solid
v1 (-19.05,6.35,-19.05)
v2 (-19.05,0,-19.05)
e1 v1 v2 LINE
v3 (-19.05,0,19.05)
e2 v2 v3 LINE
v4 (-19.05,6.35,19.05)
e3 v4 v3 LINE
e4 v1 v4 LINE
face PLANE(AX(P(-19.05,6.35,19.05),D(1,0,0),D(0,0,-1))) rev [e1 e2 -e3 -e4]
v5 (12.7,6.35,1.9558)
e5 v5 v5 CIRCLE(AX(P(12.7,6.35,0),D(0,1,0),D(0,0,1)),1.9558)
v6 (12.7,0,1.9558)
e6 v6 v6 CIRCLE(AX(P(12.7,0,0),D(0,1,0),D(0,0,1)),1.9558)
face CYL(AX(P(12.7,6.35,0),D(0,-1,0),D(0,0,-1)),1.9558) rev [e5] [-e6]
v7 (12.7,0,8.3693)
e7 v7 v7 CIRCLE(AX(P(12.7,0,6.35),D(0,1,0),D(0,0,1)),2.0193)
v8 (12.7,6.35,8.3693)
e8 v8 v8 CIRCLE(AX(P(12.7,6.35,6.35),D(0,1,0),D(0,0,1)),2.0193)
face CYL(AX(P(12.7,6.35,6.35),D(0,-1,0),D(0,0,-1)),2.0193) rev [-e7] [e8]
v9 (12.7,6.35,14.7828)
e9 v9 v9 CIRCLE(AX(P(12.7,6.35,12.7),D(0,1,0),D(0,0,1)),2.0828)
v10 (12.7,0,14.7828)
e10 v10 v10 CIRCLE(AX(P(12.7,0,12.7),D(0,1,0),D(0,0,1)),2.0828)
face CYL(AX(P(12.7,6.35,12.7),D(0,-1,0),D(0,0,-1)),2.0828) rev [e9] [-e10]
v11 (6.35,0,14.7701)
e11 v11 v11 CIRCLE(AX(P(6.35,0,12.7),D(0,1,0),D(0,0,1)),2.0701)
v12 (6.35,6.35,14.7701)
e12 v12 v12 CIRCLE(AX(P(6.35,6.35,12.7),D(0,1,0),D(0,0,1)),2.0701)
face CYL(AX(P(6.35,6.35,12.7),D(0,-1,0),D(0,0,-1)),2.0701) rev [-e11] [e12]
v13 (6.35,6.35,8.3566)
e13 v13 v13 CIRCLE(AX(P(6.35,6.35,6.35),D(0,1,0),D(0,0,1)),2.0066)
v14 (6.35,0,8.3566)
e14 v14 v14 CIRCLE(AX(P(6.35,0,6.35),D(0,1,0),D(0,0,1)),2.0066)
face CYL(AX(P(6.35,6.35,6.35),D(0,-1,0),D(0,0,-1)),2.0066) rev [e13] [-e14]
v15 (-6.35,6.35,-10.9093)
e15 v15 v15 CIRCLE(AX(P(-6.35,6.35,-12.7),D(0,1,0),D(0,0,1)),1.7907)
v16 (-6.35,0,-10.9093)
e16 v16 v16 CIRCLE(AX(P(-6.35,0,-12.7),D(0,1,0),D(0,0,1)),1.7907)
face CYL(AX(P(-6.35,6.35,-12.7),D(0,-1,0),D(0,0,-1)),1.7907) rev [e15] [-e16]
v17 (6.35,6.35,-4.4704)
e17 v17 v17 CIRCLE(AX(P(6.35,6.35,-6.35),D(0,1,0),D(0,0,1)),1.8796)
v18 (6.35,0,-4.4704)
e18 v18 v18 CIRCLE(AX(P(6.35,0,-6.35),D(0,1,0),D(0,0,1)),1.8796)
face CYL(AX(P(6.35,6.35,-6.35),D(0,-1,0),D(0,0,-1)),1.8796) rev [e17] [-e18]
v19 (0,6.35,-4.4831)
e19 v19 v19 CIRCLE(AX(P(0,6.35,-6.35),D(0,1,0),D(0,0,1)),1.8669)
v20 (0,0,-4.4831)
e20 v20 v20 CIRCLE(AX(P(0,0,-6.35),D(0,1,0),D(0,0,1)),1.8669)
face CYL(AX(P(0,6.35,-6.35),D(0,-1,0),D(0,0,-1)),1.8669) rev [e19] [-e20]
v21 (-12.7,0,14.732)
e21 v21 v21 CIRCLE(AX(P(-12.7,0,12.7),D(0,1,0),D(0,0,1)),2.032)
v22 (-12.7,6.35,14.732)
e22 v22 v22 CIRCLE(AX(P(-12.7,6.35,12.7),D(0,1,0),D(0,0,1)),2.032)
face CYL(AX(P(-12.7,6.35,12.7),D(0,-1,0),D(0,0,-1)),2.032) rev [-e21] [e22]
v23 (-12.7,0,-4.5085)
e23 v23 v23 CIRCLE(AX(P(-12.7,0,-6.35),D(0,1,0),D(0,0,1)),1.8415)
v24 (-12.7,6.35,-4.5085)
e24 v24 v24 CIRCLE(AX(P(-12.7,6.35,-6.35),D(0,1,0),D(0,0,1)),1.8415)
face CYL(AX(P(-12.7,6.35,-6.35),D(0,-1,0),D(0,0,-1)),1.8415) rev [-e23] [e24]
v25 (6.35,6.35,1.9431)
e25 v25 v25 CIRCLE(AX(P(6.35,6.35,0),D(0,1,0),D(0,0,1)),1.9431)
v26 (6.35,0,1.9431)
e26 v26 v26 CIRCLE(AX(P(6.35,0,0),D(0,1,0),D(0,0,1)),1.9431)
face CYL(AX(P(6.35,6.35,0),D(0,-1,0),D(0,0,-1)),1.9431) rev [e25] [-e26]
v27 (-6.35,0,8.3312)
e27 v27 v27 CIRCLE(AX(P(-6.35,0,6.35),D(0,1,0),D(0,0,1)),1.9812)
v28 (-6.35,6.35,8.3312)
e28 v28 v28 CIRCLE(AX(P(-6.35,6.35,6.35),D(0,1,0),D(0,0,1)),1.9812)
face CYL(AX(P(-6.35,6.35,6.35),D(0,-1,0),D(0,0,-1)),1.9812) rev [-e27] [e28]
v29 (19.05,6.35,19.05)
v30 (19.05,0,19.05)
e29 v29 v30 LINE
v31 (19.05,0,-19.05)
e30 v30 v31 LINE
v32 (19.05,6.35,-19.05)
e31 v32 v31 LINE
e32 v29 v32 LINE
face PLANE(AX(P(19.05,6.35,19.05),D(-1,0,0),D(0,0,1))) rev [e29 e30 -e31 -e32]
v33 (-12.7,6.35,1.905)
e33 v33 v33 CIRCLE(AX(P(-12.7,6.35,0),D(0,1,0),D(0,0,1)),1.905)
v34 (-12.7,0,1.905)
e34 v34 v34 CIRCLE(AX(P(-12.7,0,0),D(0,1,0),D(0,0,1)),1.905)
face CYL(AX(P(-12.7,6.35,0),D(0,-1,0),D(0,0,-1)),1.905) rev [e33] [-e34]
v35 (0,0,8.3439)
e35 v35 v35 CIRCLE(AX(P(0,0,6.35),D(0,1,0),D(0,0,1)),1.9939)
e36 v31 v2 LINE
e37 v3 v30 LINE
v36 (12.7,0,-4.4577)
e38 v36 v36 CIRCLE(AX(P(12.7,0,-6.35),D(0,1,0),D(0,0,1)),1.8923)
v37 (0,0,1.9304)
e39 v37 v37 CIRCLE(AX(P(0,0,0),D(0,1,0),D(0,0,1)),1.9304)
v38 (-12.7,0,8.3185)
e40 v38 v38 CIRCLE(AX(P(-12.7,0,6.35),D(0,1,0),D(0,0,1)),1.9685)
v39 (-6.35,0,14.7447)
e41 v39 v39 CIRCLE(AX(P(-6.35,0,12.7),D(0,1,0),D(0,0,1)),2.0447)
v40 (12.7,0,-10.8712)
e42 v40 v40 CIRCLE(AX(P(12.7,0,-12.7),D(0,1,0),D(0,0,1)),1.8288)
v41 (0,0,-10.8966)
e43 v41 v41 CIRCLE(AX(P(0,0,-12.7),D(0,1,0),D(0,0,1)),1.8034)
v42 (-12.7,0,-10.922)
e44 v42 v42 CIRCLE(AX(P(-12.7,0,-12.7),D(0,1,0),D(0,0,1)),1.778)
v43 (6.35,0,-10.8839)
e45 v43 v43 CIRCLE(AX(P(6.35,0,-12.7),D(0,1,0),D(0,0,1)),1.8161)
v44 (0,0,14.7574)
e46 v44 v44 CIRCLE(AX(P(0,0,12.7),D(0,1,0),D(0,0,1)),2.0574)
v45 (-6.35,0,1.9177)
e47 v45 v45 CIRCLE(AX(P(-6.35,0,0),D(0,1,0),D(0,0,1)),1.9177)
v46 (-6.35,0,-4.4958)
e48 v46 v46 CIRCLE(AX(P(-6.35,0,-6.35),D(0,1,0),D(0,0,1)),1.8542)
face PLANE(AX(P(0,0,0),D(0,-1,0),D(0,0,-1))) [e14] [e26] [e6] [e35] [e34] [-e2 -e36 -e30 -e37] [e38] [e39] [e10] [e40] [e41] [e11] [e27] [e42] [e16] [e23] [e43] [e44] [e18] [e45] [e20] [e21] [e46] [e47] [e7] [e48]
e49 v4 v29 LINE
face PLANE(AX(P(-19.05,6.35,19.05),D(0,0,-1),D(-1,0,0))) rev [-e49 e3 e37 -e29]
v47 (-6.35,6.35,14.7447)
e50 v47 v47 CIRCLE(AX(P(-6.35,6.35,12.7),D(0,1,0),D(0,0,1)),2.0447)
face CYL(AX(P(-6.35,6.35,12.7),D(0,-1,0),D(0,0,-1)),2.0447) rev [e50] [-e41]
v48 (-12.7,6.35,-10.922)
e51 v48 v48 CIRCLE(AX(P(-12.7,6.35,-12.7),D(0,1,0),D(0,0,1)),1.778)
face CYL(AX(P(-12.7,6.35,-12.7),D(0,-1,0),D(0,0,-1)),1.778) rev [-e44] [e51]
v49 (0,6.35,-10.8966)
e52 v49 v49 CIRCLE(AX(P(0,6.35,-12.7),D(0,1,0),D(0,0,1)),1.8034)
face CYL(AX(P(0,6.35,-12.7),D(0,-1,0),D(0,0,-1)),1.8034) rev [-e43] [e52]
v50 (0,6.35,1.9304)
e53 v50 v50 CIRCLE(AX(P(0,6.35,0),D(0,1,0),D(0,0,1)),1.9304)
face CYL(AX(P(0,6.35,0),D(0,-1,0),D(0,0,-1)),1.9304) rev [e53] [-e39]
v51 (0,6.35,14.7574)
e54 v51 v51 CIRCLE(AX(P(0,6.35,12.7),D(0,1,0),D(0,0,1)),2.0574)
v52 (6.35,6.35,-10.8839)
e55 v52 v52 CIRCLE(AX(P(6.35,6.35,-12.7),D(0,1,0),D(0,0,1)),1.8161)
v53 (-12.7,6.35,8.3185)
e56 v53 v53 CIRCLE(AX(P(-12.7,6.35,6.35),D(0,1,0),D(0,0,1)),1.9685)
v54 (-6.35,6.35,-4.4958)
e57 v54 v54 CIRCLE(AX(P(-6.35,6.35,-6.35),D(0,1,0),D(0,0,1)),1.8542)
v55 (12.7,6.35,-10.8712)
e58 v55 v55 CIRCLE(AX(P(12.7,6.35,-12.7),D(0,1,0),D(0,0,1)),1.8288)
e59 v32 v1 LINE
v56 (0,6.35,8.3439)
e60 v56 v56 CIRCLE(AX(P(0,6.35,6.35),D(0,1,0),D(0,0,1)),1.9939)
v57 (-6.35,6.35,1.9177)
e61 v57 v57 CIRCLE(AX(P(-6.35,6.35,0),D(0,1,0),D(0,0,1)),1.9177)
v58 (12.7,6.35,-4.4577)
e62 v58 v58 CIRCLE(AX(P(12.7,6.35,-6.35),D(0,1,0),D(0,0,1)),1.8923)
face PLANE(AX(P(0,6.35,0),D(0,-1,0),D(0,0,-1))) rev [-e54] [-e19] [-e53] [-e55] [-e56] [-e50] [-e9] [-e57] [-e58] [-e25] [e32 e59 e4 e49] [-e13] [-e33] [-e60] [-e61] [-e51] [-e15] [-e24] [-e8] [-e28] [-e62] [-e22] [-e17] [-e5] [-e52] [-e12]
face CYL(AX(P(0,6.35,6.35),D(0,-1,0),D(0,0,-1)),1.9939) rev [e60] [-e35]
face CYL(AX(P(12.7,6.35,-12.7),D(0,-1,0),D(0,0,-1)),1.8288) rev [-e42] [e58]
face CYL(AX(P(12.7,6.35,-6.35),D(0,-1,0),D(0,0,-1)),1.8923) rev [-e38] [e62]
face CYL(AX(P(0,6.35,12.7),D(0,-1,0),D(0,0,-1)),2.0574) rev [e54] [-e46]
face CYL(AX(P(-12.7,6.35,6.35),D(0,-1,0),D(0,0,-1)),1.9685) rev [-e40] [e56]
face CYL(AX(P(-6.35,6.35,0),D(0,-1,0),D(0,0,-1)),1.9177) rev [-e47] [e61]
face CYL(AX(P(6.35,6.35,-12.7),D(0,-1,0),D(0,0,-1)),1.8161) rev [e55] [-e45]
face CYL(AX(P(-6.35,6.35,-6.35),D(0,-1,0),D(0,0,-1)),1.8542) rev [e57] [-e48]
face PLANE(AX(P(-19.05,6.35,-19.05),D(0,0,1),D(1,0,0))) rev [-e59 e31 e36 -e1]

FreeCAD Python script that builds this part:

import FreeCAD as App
import Part
import Sketcher
Q = App.Units.Quantity

doc = App.newDocument("Part")
params = doc.addObject("Spreadsheet::Sheet", "Params")
for row, (alias, value) in enumerate([
    ("sketch1_diameter", "0.16 in"),
    ("sketch1_diameter2", "0.15 in"),
    ("sketch1_diameter3", "0.14 in"),
    ("sketch1_diameter4", "0.161 in"),
    ("sketch1_diameter5", "0.162 in"),
    ("pad1_length", "0.25 in"),
], start=1):
    params.set(f"A{row}", alias)
    params.set(f"B{row}", "=" + value)
    params.setAlias(f"B{row}", alias)

body = doc.addObject("PartDesign::Body", "Body")

# Sketch on XZ plane
sketch1 = body.newObject("Sketcher::SketchObject", "Sketch")
sketch1.AttachmentSupport = (doc.getObject("XZ_Plane"), [""])
sketch1.MapMode = "FlatFace"
sketch1.addGeometry([
    Part.LineSegment(App.Vector(-19.1, -19.1, 0), App.Vector(-19.1, 19.1, 0)),  # 0
    Part.LineSegment(App.Vector(-19.1, 19.1, 0), App.Vector(19.1, 19.1, 0)),  # 1
    Part.LineSegment(App.Vector(19.1, 19.1, 0), App.Vector(19.1, -19.1, 0)),  # 2
    Part.LineSegment(App.Vector(19.1, -19.1, 0), App.Vector(-19.1, -19.1, 0)),  # 3
    Part.Circle(App.Vector(-12.7, 12.7, 0), App.Vector(0, 0, 1), 2),  # 4
    Part.Circle(App.Vector(-6.3, 12.7, 0), App.Vector(0, 0, 1), 2),  # 5
    Part.Circle(App.Vector(0, 12.7, 0), App.Vector(0, 0, 1), 2.1),  # 6
    Part.Circle(App.Vector(-12.7, 6.3, 0), App.Vector(0, 0, 1), 2),  # 7
    Part.Circle(App.Vector(-6.3, 6.3, 0), App.Vector(0, 0, 1), 2),  # 8
    Part.Circle(App.Vector(0, 6.3, 0), App.Vector(0, 0, 1), 2),  # 9
    Part.Circle(App.Vector(6.3, 12.7, 0), App.Vector(0, 0, 1), 2.1),  # 10
    Part.Circle(App.Vector(12.7, 12.7, 0), App.Vector(0, 0, 1), 2.1),  # 11
    Part.Circle(App.Vector(6.3, 6.3, 0), App.Vector(0, 0, 1), 2),  # 12
    Part.Circle(App.Vector(12.7, 6.3, 0), App.Vector(0, 0, 1), 2),  # 13
    Part.Circle(App.Vector(-12.7, 0, 0), App.Vector(0, 0, 1), 1.9),  # 14
    Part.Circle(App.Vector(-12.7, -6.3, 0), App.Vector(0, 0, 1), 1.8),  # 15
    Part.Circle(App.Vector(-6.3, 0, 0), App.Vector(0, 0, 1), 1.9),  # 16
    Part.Circle(App.Vector(0, 0, 0), App.Vector(0, 0, 1), 1.9),  # 17
    Part.Circle(App.Vector(-6.3, -6.3, 0), App.Vector(0, 0, 1), 1.9),  # 18
    Part.Circle(App.Vector(0, -6.3, 0), App.Vector(0, 0, 1), 1.9),  # 19
    Part.Circle(App.Vector(-12.7, -12.7, 0), App.Vector(0, 0, 1), 1.8),  # 20
    Part.Circle(App.Vector(-6.3, -12.7, 0), App.Vector(0, 0, 1), 1.8),  # 21
    Part.Circle(App.Vector(0, -12.7, 0), App.Vector(0, 0, 1), 1.8),  # 22
    Part.Circle(App.Vector(6.3, 0, 0), App.Vector(0, 0, 1), 1.9),  # 23
    Part.Circle(App.Vector(6.3, -6.3, 0), App.Vector(0, 0, 1), 1.9),  # 24
    Part.Circle(App.Vector(12.7, 0, 0), App.Vector(0, 0, 1), 2),  # 25
    Part.Circle(App.Vector(12.7, -6.3, 0), App.Vector(0, 0, 1), 1.9),  # 26
    Part.Circle(App.Vector(6.3, -12.7, 0), App.Vector(0, 0, 1), 1.8),  # 27
    Part.Circle(App.Vector(12.7, -12.7, 0), App.Vector(0, 0, 1), 1.8),  # 28
], False)
sketch1.addConstraint([
    Sketcher.Constraint("Coincident", 0, 2, 1, 1),
    Sketcher.Constraint("Coincident", 1, 2, 2, 1),
    Sketcher.Constraint("Coincident", 2, 2, 3, 1),
    Sketcher.Constraint("Coincident", 3, 2, 0, 1),
    Sketcher.Constraint("Vertical", 0),
    Sketcher.Constraint("Horizontal", 1),
    Sketcher.Constraint("Vertical", 2),
    Sketcher.Constraint("Horizontal", 3),
    Sketcher.Constraint("Coincident", 17, 3, -1, 1),
    Sketcher.Constraint("Symmetric", 13, 3, 15, 3, -1, 1),
    Sketcher.Constraint("Symmetric", 12, 3, 18, 3, -1, 1),
    Sketcher.Constraint("Symmetric", 9, 3, 19, 3, -1, 1),
    Sketcher.Constraint("Symmetric", 11, 3, 20, 3, -1, 1),
    Sketcher.Constraint("Symmetric", 10, 3, 21, 3, -1, 1),
    Sketcher.Constraint("Symmetric", 6, 3, 22, 3, -1, 1),
    Sketcher.Constraint("Symmetric", 16, 3, 23, 3, -1, 1),
    Sketcher.Constraint("Symmetric", 8, 3, 24, 3, -1, 1),
    Sketcher.Constraint("Symmetric", 14, 3, 25, 3, -1, 1),
    Sketcher.Constraint("Symmetric", 7, 3, 26, 3, -1, 1),
    Sketcher.Constraint("Symmetric", 5, 3, 27, 3, -1, 1),
    Sketcher.Constraint("Symmetric", 4, 3, 28, 3, -1, 1),
    Sketcher.Constraint("Symmetric", 0, 2, 2, 2, -1, 1),
    Sketcher.Constraint("Symmetric", 5, 3, 10, 3, -2),
    Sketcher.Constraint("Symmetric", 4, 3, 11, 3, -2),
    Sketcher.Constraint("Symmetric", 8, 3, 12, 3, -2),
    Sketcher.Constraint("Symmetric", 7, 3, 13, 3, -2),
    Sketcher.Constraint("PointOnObject", 6, 3, -2),
    Sketcher.Constraint("PointOnObject", 9, 3, -2),
    Sketcher.Constraint("PointOnObject", 14, 3, -1),
    Sketcher.Constraint("PointOnObject", 16, 3, -1),
    Sketcher.Constraint("Horizontal", 4, 3, 5, 3),
    Sketcher.Constraint("Horizontal", 5, 3, 6, 3),
    Sketcher.Constraint("Horizontal", 7, 3, 8, 3),
    Sketcher.Constraint("Horizontal", 8, 3, 9, 3),
    Sketcher.Constraint("Vertical", 4, 3, 7, 3),
    Sketcher.Constraint("Vertical", 5, 3, 8, 3),
    Sketcher.Constraint("Vertical", 7, 3, 14, 3),
    Sketcher.Constraint("Vertical", 8, 3, 16, 3),
    Sketcher.Constraint("Equal", 3, 0),
    Sketcher.Constraint("Diameter", 4, Q("0.16 in")),
    Sketcher.Constraint("Diameter", 14, Q("0.15 in")),
    Sketcher.Constraint("Diameter", 20, Q("0.14 in")),
    Sketcher.Constraint("Diameter", 5, Q("0.161 in")),
    Sketcher.Constraint("Diameter", 6, Q("0.162 in")),
    Sketcher.Constraint("Diameter", 7, Q("0.155 in")),
    Sketcher.Constraint("Diameter", 8, Q("0.156 in")),
    Sketcher.Constraint("Diameter", 9, Q("0.157 in")),
    Sketcher.Constraint("Diameter", 10, Q("0.163 in")),
    Sketcher.Constraint("Diameter", 11, Q("0.164 in")),
    Sketcher.Constraint("Diameter", 12, Q("0.158 in")),
    Sketcher.Constraint("Diameter", 13, Q("0.159 in")),
    Sketcher.Constraint("Diameter", 15, Q("0.145 in")),
    Sketcher.Constraint("Diameter", 16, Q("0.151 in")),
    Sketcher.Constraint("Diameter", 17, Q("0.152 in")),
    Sketcher.Constraint("Diameter", 18, Q("0.146 in")),
    Sketcher.Constraint("Diameter", 19, Q("0.147 in")),
    Sketcher.Constraint("Diameter", 21, Q("0.141 in")),
    Sketcher.Constraint("Diameter", 22, Q("0.142 in")),
    Sketcher.Constraint("Diameter", 23, Q("0.153 in")),
    Sketcher.Constraint("Diameter", 24, Q("0.148 in")),
    Sketcher.Constraint("Diameter", 25, Q("0.154 in")),
    Sketcher.Constraint("Diameter", 26, Q("0.149 in")),
    Sketcher.Constraint("Diameter", 27, Q("0.143 in")),
    Sketcher.Constraint("Diameter", 28, Q("0.144 in")),
    Sketcher.Constraint("DistanceX", 1, 1, 1, 2, Q("1.5 in")),
    Sketcher.Constraint("DistanceX", 4, 3, -1, 1, Q("0.5 in")),
    Sketcher.Constraint("DistanceY", -1, 1, 4, 3, Q("0.5 in")),
    Sketcher.Constraint("DistanceX", 5, 3, 10, 3, Q("0.5 in")),
    Sketcher.Constraint("DistanceY", 15, 3, 7, 3, Q("0.5 in")),
])
sketch1.setExpression("Constraints[39]", "Params.sketch1_diameter")
sketch1.setExpression("Constraints[40]", "Params.sketch1_diameter2")
sketch1.setExpression("Constraints[41]", "Params.sketch1_diameter3")
sketch1.setExpression("Constraints[42]", "Params.sketch1_diameter4")
sketch1.setExpression("Constraints[43]", "Params.sketch1_diameter5")
pad1 = body.newObject("PartDesign::Pad", "Pad")
pad1.Profile = sketch1
pad1.setExpression("Length", "Params.pad1_length")
pad1.Reversed = True

doc.recompute()
